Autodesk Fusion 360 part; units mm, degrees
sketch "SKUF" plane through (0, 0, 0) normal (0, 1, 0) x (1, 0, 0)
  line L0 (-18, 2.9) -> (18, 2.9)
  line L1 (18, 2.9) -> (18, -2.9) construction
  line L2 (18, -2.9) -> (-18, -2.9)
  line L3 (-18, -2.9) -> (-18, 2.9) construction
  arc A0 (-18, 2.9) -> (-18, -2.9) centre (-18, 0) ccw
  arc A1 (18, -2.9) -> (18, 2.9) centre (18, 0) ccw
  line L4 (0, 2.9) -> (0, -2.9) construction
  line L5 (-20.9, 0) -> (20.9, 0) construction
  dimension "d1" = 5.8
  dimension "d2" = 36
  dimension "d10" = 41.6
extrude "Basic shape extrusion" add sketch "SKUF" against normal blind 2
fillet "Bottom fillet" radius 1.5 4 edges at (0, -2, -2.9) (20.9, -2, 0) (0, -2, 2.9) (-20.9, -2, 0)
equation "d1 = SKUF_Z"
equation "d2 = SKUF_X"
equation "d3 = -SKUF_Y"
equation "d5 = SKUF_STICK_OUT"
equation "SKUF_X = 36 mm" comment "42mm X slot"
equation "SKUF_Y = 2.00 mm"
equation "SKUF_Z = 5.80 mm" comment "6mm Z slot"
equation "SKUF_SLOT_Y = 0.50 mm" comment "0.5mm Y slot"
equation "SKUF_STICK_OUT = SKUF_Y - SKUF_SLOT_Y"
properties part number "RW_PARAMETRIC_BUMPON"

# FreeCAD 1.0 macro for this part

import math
import FreeCAD as App
import Part
import Sketcher

V = App.Vector
Q = App.Units.Quantity


def edges_at(feature, points):
    """Names of the edges that pass closest to the given points."""
    edges = feature.Shape.Edges
    near = lambda p: min(range(len(edges)), key=lambda i: edges[i].distToShape(Part.Vertex(*p))[0])
    return sorted({f"Edge{near(p) + 1}" for p in points})

doc = App.newDocument("Part")
body = doc.addObject("PartDesign::Body", "Body")

sketch1 = body.newObject("Sketcher::SketchObject", "Sketch")
sketch1.AttachmentSupport = (doc.getObject("XZ_Plane"), [""])
sketch1.MapMode = "FlatFace"
sketch1.addGeometry(Part.LineSegment(V(18, -2.9, 0), V(-18, -2.9, 0)), False)
sketch1.addGeometry(Part.ArcOfCircle(Part.Circle(V(-18, 0, 0), V(0, 0, 1), 2.9), math.radians(90), math.radians(270)), False)
sketch1.addGeometry(Part.LineSegment(V(-18, 2.9, 0), V(18, 2.9, 0)), False)
sketch1.addGeometry(Part.ArcOfCircle(Part.Circle(V(18, 0, 0), V(0, 0, 1), 2.9), math.radians(-90), math.radians(90)), False)
sketch1.addConstraint(Sketcher.Constraint("Tangent", 0, 2, 1, 2))
sketch1.addConstraint(Sketcher.Constraint("Tangent", 1, 1, 2, 1))
sketch1.addConstraint(Sketcher.Constraint("Tangent", 2, 2, 3, 2))
sketch1.addConstraint(Sketcher.Constraint("Tangent", 3, 1, 0, 1))
sketch1.addConstraint(Sketcher.Constraint("Horizontal", 0))
sketch1.addConstraint(Sketcher.Constraint("Horizontal", 2))
sketch1.addConstraint(Sketcher.Constraint("Symmetric", 1, 3, 3, 3, -1, 1))
sketch1.addConstraint(Sketcher.Constraint("Radius", 1, Q("2.9 mm")))
sketch1.addConstraint(Sketcher.Constraint("DistanceX", 0, 2, 0, 1, Q("36 mm")))
pad1 = body.newObject("PartDesign::Pad", "Pad")
pad1.Profile = sketch1
pad1.Length = 2
doc.recompute()

fillet = body.newObject("PartDesign::Fillet", "Fillet")
fillet.Base = (pad1, edges_at(pad1, [
    (0, -2, -2.9),
    (20.9, -2, 0),
    (0, -2, 2.9),
    (-20.9, -2, 0),
]))
fillet.Radius = 1.5

doc.recompute()
